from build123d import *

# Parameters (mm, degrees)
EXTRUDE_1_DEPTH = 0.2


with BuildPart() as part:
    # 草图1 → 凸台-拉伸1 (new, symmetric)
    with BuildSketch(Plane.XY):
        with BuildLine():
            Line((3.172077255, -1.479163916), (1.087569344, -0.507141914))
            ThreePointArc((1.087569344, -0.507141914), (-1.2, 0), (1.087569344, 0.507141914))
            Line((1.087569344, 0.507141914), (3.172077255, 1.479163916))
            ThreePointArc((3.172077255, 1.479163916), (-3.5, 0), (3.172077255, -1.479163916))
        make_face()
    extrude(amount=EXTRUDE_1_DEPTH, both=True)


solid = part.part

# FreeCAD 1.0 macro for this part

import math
import FreeCAD as App
import Part
import Sketcher

V = App.Vector
Q = App.Units.Quantity

doc = App.newDocument("Part")
params = doc.addObject("Spreadsheet::Sheet", "Params")
for row, (alias, value) in enumerate([
    ("sketch1_radius", "1.2 mm"),
    ("sketch1_radius2", "3.5 mm"),
    ("pad1_length", "0.4 mm"),
], start=1):
    params.set(f"A{row}", alias)
    params.set(f"B{row}", "=" + value)
    params.setAlias(f"B{row}", alias)

body = doc.addObject("PartDesign::Body", "Body")

sketch1 = body.newObject("Sketcher::SketchObject", "Sketch")
sketch1.AttachmentSupport = (doc.getObject("XY_Plane"), [""])
sketch1.MapMode = "FlatFace"
sketch1.addGeometry(Part.LineSegment(V(3.2, -1.5, 0), V(1.1, -0.5, 0)), False)
sketch1.addGeometry(Part.ArcOfCircle(Part.Circle(V(0, 0, 0), V(0, 0, 1), 1.2), math.radians(25), math.radians(335)), False)
sketch1.addGeometry(Part.LineSegment(V(1.1, 0.5, 0), V(3.2, 1.5, 0)), False)
sketch1.addGeometry(Part.ArcOfCircle(Part.Circle(V(0, 0, 0), V(0, 0, 1), 3.5), math.radians(25), math.radians(335)), False)
sketch1.addConstraint(Sketcher.Constraint("Coincident", 0, 2, 1, 2))
sketch1.addConstraint(Sketcher.Constraint("Coincident", 1, 1, 2, 1))
sketch1.addConstraint(Sketcher.Constraint("Coincident", 2, 2, 3, 1))
sketch1.addConstraint(Sketcher.Constraint("Coincident", 3, 2, 0, 1))
sketch1.addConstraint(Sketcher.Constraint("Coincident", 1, 3, -1, 1))
sketch1.addConstraint(Sketcher.Constraint("Coincident", 3, 3, -1, 1))
sketch1.addConstraint(Sketcher.Constraint("Vertical", 0, 2, 1, 1))
sketch1.addConstraint(Sketcher.Constraint("Vertical", 2, 2, 3, 2))
sketch1.addConstraint(Sketcher.Constraint("Radius", 1, Q("1.2 mm")))
sketch1.addConstraint(Sketcher.Constraint("Radius", 3, Q("3.5 mm")))
sketch1.addConstraint(Sketcher.Constraint("Angle", 0, Q("155 deg")))
sketch1.addConstraint(Sketcher.Constraint("DistanceX", -1, 1, 0, 2, Q("1.087569 mm")))
sketch1.setExpression("Constraints[8]", "Params.sketch1_radius")
sketch1.setExpression("Constraints[9]", "Params.sketch1_radius2")
pad1 = body.newObject("PartDesign::Pad", "Pad")
pad1.Profile = sketch1
pad1.setExpression("Length", "Params.pad1_length")
pad1.Midplane = True

doc.recompute()
